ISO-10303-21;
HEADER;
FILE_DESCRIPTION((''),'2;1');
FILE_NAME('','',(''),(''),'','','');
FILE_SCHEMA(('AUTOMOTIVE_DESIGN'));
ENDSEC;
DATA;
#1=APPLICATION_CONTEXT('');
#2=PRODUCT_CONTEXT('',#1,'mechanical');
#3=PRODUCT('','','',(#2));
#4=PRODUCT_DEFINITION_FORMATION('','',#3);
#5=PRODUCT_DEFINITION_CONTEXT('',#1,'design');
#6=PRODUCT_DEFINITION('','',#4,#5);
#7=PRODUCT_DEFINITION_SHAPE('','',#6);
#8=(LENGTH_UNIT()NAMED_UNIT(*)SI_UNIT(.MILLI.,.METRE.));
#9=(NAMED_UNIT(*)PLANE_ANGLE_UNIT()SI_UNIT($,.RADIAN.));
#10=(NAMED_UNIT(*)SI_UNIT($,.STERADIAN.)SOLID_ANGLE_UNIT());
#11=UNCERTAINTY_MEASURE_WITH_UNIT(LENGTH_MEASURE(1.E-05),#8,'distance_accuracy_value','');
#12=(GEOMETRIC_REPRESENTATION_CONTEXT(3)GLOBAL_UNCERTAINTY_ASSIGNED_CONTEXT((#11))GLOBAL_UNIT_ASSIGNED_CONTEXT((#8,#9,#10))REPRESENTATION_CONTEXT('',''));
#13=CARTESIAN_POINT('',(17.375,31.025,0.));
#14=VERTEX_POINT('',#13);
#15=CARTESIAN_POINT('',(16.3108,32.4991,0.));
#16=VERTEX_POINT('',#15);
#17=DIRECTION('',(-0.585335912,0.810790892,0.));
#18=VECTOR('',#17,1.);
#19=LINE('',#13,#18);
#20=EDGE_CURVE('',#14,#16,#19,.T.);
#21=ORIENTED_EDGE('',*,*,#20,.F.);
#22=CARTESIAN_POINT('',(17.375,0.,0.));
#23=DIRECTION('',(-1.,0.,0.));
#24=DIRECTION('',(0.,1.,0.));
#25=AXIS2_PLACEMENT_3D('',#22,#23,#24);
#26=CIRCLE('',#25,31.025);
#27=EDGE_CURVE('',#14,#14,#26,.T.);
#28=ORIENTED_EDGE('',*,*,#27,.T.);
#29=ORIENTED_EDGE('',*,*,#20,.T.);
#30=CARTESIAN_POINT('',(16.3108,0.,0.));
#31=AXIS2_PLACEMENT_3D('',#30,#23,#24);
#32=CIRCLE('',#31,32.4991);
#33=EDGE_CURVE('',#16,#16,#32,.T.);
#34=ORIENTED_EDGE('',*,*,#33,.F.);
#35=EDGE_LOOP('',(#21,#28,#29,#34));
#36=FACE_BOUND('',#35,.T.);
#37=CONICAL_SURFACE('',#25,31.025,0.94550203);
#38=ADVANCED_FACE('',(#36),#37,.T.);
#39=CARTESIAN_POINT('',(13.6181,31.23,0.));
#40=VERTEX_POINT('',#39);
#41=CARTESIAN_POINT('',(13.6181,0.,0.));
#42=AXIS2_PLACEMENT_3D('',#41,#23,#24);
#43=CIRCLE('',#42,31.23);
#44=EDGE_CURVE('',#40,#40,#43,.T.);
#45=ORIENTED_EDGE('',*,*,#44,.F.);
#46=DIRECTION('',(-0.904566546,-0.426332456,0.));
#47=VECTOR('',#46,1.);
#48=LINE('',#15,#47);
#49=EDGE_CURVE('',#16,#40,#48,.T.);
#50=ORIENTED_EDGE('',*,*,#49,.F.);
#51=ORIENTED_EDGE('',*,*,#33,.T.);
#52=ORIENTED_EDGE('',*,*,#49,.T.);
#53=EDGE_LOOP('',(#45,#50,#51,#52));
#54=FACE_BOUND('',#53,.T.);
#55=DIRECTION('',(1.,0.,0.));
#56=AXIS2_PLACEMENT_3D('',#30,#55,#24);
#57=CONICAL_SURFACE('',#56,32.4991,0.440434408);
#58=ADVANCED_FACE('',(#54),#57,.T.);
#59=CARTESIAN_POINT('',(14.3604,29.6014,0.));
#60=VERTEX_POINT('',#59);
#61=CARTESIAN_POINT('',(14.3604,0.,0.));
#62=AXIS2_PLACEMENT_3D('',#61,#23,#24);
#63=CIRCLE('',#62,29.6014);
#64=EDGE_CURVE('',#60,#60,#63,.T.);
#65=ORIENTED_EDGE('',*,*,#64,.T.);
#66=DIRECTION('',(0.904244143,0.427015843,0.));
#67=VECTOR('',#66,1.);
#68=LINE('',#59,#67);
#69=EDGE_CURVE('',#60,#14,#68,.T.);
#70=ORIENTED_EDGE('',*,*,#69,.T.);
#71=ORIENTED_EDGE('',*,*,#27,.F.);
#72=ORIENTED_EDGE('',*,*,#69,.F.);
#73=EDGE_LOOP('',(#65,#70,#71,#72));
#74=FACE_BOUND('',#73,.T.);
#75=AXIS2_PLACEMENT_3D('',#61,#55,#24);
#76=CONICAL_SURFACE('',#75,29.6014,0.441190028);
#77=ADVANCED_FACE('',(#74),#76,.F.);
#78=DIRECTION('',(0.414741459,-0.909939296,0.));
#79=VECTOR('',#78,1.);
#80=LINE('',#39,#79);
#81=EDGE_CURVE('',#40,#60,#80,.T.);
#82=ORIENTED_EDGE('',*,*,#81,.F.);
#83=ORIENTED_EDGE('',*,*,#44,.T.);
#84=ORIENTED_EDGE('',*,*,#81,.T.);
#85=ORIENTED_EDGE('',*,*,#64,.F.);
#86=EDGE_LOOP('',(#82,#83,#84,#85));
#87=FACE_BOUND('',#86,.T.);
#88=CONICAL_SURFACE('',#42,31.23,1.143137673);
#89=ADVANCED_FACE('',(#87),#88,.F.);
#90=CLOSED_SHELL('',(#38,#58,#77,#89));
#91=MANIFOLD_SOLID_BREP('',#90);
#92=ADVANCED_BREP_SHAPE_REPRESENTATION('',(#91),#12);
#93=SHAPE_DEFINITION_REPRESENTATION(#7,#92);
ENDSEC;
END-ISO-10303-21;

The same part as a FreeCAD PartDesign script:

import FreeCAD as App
import Part
import Sketcher

V = App.Vector
Q = App.Units.Quantity


def add_polygon(sketch, points):
    """Adds a closed chain of lines whose ends are joined by coincident constraints."""
    first, n = sketch.GeometryCount, len(points)
    for a, b in zip(points, points[1:] + points[:1]):
        sketch.addGeometry(Part.LineSegment(App.Vector(*a, 0), App.Vector(*b, 0)), False)
    for i in range(n):
        sketch.addConstraint(Sketcher.Constraint("Coincident", first + i, 2, first + (i + 1) % n, 1))

doc = App.newDocument("Part")
params = doc.addObject("Spreadsheet::Sheet", "Params")
for row, (alias, value) in enumerate([
    ("revolution_angle", "360 deg"),
], start=1):
    params.set(f"A{row}", alias)
    params.set(f"B{row}", "=" + value)
    params.setAlias(f"B{row}", alias)

body = doc.addObject("PartDesign::Body", "Body")

sketch1 = body.newObject("Sketcher::SketchObject", "Sketch")
sketch1.AttachmentSupport = (doc.getObject("XY_Plane"), [""])
sketch1.MapMode = "FlatFace"
add_polygon(sketch1, [(16.3108, 32.4991), (13.6181, 31.23), (14.3604, 29.6014), (17.375, 31.025)])
sketch1.addConstraint(Sketcher.Constraint("DistanceY", -1, 1, 0, 2, Q("31.23 mm")))
sketch1.addConstraint(Sketcher.Constraint("Distance", 3, Q("1.818 mm")))
sketch1.addConstraint(Sketcher.Constraint("DistanceX", -1, 1, 0, 2, Q("13.618 mm")))
sketch1.addConstraint(Sketcher.Constraint("DistanceX", -1, 1, 2, 2, Q("17.375 mm")))
sketch1.addConstraint(Sketcher.Constraint("DistanceY", -1, 1, 2, 2, Q("31.025 mm")))
sketch1.addConstraint(Sketcher.Constraint("DistanceY", -1, 1, 3, 2, Q("32.499 mm")))
sketch1.addConstraint(Sketcher.Constraint("Distance", 1, Q("1.7898 mm")))
sketch1.addConstraint(Sketcher.Constraint("Distance", 2, Q("3.3338 mm")))
revolution = body.newObject("PartDesign::Revolution", "Revolution")
revolution.Profile = sketch1
revolution.ReferenceAxis = (sketch1, ["H_Axis"])
revolution.setExpression("Angle", "Params.revolution_angle")

doc.recompute()
